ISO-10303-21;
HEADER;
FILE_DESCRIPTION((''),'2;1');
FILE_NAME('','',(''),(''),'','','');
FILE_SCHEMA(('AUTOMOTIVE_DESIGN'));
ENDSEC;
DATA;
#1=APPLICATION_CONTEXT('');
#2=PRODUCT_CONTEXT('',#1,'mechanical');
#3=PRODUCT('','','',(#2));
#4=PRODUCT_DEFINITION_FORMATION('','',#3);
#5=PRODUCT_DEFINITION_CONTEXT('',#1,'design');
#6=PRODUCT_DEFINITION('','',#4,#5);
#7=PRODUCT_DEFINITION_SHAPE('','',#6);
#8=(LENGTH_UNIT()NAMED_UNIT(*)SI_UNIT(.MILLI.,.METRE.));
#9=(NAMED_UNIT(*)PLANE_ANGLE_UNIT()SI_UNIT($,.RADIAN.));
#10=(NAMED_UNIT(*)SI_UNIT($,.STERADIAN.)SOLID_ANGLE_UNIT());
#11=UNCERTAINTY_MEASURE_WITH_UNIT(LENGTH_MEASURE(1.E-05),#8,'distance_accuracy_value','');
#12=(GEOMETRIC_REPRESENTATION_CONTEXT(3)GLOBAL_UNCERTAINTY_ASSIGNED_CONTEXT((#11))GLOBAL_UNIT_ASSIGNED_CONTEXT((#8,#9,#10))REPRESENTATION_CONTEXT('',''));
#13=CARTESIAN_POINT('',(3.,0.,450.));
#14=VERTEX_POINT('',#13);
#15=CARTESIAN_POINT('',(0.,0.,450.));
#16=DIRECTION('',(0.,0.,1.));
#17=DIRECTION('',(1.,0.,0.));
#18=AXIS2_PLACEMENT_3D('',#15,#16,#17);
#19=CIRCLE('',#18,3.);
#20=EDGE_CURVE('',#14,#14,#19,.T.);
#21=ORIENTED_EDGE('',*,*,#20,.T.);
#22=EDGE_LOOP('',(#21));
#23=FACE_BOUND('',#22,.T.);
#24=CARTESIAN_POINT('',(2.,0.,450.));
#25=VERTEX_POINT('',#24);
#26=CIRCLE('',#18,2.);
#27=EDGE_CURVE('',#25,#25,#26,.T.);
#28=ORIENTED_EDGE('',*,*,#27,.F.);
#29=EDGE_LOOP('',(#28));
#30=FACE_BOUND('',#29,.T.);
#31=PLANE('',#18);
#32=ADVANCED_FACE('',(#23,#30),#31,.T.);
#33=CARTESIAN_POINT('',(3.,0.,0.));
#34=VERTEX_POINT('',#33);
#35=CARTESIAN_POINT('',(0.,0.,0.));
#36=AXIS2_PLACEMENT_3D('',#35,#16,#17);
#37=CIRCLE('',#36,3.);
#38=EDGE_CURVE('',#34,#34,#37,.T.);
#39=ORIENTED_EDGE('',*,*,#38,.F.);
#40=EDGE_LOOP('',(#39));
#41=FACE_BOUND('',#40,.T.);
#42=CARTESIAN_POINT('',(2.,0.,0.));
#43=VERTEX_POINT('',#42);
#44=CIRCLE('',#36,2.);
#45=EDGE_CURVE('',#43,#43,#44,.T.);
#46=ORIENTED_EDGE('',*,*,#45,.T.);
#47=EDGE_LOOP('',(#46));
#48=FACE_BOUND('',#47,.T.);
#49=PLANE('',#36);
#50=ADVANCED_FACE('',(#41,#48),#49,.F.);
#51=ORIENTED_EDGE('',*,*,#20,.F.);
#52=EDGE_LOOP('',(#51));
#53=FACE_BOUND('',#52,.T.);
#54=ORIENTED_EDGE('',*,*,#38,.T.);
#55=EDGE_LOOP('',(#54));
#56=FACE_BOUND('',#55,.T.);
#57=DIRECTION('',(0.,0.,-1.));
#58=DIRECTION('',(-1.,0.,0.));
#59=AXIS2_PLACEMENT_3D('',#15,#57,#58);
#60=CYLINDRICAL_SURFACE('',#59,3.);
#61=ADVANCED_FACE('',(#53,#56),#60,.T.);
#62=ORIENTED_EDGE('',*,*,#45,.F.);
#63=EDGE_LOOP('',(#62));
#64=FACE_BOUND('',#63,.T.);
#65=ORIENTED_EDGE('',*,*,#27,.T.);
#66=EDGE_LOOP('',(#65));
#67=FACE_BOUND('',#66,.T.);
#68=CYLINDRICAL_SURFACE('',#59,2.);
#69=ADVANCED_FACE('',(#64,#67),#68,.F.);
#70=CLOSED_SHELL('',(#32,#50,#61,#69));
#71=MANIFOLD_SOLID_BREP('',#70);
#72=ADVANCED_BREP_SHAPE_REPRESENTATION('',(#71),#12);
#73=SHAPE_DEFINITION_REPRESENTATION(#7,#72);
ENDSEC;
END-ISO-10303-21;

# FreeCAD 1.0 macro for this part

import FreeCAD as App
import Part
import Sketcher

V = App.Vector
Q = App.Units.Quantity

doc = App.newDocument("Part")
body = doc.addObject("PartDesign::Body", "Body")

# Sketch on XY plane
sketch1 = body.newObject("Sketcher::SketchObject", "Sketch")
sketch1.AttachmentSupport = (doc.getObject("XY_Plane"), [""])
sketch1.MapMode = "FlatFace"
sketch1.addGeometry(Part.Circle(V(0, 0, 0), V(0, 0, 1), 3), False)
sketch1.addGeometry(Part.Circle(V(0, 0, 0), V(0, 0, 1), 2), False)
sketch1.addConstraint(Sketcher.Constraint("Coincident", 0, 3, -1, 1))
sketch1.addConstraint(Sketcher.Constraint("Coincident", 1, 3, -1, 1))
sketch1.addConstraint(Sketcher.Constraint("Diameter", 0, Q("6 mm")))
sketch1.addConstraint(Sketcher.Constraint("Diameter", 1, Q("4 mm")))
pad1 = body.newObject("PartDesign::Pad", "Pad")
pad1.Profile = sketch1
pad1.Length = 450

doc.recompute()
